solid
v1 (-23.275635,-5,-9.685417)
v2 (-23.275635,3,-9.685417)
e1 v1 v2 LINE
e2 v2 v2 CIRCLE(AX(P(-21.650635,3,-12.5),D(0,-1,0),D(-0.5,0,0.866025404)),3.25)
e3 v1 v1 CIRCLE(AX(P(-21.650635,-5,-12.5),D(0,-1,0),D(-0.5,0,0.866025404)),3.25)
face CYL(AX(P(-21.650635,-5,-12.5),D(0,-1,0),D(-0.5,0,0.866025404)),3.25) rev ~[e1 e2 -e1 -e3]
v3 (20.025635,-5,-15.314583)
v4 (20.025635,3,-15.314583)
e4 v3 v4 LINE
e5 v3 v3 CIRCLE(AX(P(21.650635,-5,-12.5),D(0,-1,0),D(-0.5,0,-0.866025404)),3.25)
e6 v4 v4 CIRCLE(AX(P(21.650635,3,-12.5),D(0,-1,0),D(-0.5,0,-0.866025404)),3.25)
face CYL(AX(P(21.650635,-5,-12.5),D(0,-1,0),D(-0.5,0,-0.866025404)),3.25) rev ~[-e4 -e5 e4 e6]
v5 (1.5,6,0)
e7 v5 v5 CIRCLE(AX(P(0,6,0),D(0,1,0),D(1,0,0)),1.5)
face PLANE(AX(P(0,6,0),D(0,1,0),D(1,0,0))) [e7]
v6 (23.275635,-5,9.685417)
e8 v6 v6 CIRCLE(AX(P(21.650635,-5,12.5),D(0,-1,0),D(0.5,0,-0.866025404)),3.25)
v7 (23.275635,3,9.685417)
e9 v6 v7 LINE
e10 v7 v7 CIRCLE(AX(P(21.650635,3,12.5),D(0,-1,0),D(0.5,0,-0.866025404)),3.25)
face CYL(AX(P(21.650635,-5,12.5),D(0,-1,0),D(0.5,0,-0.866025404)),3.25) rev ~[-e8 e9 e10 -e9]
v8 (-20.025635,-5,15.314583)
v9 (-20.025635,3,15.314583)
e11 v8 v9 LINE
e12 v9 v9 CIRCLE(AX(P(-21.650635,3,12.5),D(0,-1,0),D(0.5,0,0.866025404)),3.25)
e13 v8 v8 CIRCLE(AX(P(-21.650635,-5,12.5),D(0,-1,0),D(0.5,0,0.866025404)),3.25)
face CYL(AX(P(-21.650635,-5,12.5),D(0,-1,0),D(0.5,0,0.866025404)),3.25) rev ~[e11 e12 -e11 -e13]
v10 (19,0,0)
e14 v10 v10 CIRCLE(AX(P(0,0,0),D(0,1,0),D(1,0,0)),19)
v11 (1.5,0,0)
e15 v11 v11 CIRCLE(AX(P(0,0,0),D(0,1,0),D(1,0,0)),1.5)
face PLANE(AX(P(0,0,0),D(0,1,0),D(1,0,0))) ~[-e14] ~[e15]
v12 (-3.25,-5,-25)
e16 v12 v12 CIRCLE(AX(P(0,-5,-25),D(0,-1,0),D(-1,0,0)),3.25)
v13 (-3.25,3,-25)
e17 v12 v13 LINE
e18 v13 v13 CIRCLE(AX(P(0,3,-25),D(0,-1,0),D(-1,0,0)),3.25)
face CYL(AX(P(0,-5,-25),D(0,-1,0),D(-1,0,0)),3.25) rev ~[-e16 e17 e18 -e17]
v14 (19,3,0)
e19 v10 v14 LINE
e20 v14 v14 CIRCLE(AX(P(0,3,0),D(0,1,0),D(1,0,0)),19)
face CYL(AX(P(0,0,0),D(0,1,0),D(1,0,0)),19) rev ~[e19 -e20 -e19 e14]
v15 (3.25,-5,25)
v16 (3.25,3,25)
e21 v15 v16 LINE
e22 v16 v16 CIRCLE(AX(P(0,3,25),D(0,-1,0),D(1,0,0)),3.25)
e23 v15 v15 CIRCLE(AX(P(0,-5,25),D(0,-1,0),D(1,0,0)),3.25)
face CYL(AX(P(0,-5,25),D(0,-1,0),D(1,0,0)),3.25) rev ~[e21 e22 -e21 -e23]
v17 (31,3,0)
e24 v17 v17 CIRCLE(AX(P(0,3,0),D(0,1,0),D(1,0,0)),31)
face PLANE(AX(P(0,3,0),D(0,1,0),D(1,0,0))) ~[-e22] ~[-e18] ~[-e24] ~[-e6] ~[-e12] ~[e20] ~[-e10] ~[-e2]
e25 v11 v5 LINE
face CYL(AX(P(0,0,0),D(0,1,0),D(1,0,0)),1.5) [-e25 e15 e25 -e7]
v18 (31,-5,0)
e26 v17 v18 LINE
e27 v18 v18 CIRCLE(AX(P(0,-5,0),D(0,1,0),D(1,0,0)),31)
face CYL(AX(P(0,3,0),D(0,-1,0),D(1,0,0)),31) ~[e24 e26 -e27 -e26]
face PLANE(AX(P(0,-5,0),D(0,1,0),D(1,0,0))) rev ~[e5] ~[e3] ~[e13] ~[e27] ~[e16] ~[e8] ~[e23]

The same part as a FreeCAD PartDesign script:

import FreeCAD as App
import Part
import Sketcher

V = App.Vector


def add_polygon(sketch, points):
    """Adds a closed chain of lines whose ends are joined by coincident constraints."""
    first, n = sketch.GeometryCount, len(points)
    for a, b in zip(points, points[1:] + points[:1]):
        sketch.addGeometry(Part.LineSegment(App.Vector(*a, 0), App.Vector(*b, 0)), False)
    for i in range(n):
        sketch.addConstraint(Sketcher.Constraint("Coincident", first + i, 2, first + (i + 1) % n, 1))

doc = App.newDocument("Part")
body = doc.addObject("PartDesign::Body", "Body")

# Sketch on XY plane
sketch1 = doc.addObject("Sketcher::SketchObject", "Sketch")
body.addObject(sketch1)
sketch1.AttachmentSupport = (doc.XY_Plane, [""])
sketch1.MapMode = "FlatFace"
add_polygon(sketch1, [(19, 0), (1.5, 0), (1.5, 6), (0, 6), (0, -5), (31, -5), (31, 3), (19, 3)])  # lines 0-7
sketch1.addConstraint(Sketcher.Constraint("Horizontal", 0))
sketch1.addConstraint(Sketcher.Constraint("Vertical", 1))
sketch1.addConstraint(Sketcher.Constraint("Horizontal", 2))
sketch1.addConstraint(Sketcher.Constraint("Vertical", 3))
sketch1.addConstraint(Sketcher.Constraint("Horizontal", 4))
sketch1.addConstraint(Sketcher.Constraint("Vertical", 5))
sketch1.addConstraint(Sketcher.Constraint("Horizontal", 6))
sketch1.addConstraint(Sketcher.Constraint("Vertical", 7))
sketch1.addConstraint(Sketcher.Constraint("PointOnObject", 0, 2, -1))
sketch1.addConstraint(Sketcher.Constraint("PointOnObject", 2, 2, -2))
sketch1.addConstraint(Sketcher.Constraint("DistanceX", 6, 2, 6, 1, 12.0))
sketch1.addConstraint(Sketcher.Constraint("DistanceY", 1, 1, 1, 2, 6.0))
sketch1.addConstraint(Sketcher.Constraint("DistanceX", 2, 2, 2, 1, 1.5))
sketch1.addConstraint(Sketcher.Constraint("DistanceY", 3, 2, -1, 1, 5.0))
sketch1.addConstraint(Sketcher.Constraint("DistanceX", -1, 1, 6, 2, 19.0))
sketch1.addConstraint(Sketcher.Constraint("DistanceY", 5, 1, 5, 2, 8.0))
revolution = doc.addObject("PartDesign::Revolution", "Revolution")
body.addObject(revolution)
revolution.Profile = sketch1
revolution.ReferenceAxis = (sketch1, ["V_Axis"])
revolution.Angle = 360

# Sketch on XZ plane
sketch2 = doc.addObject("Sketcher::SketchObject", "Sketch001")
body.addObject(sketch2)
sketch2.AttachmentSupport = (doc.XZ_Plane, [""])
sketch2.MapMode = "FlatFace"
sketch2.AttachmentOffset = App.Placement(V(0, 0, 5), App.Rotation())
sketch2.addGeometry(Part.Circle(V(0, 25, 0), V(0, 0, 1), 3.2), False)
sketch2.addConstraint(Sketcher.Constraint("PointOnObject", 0, 3, -2))
sketch2.addConstraint(Sketcher.Constraint("Diameter", 0, 6.5))
sketch2.addConstraint(Sketcher.Constraint("DistanceY", -1, 1, 0, 3, 25.0))
pocket1 = doc.addObject("PartDesign::Pocket", "Pocket")
body.addObject(pocket1)
pocket1.Profile = sketch2
pocket1.Length = 8
doc.recompute()

polarpattern = doc.addObject("PartDesign::PolarPattern", "PolarPattern")
body.addObject(polarpattern)
polarpattern.Originals = [pocket1]
polarpattern.Axis = (doc.Y_Axis, [""])
polarpattern.Angle = 360
polarpattern.Occurrences = 6
body.Tip = polarpattern

doc.recompute()
